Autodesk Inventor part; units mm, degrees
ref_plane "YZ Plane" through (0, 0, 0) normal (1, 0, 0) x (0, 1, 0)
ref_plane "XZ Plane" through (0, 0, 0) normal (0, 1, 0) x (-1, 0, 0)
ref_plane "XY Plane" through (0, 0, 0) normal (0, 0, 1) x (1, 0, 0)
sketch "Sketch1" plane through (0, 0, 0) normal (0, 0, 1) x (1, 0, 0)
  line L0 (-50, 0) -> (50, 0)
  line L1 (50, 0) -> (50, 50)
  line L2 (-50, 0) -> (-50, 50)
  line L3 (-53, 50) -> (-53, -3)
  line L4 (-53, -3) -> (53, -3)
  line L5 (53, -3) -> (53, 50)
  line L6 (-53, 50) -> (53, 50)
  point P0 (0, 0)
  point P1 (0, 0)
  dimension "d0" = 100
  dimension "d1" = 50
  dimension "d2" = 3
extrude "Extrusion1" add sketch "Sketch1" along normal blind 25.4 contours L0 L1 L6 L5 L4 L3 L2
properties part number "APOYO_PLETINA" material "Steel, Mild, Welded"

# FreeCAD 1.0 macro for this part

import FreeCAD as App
import Part
import Sketcher

V = App.Vector


def add_polygon(sketch, points):
    """Adds a closed chain of lines whose ends are joined by coincident constraints."""
    first, n = sketch.GeometryCount, len(points)
    for a, b in zip(points, points[1:] + points[:1]):
        sketch.addGeometry(Part.LineSegment(App.Vector(*a, 0), App.Vector(*b, 0)), False)
    for i in range(n):
        sketch.addConstraint(Sketcher.Constraint("Coincident", first + i, 2, first + (i + 1) % n, 1))

doc = App.newDocument("Part")
body = doc.addObject("PartDesign::Body", "Body")

# Sketch on XY plane
sketch1 = body.newObject("Sketcher::SketchObject", "Sketch")
sketch1.AttachmentSupport = (doc.getObject("XY_Plane"), [""])
sketch1.MapMode = "FlatFace"
add_polygon(sketch1, [(50, 0), (-50, 0), (-50, 50), (-53, 50), (-53, -3), (53, -3), (53, 50), (50, 50)])  # lines 0-7
sketch1.addConstraint([
    Sketcher.Constraint("Horizontal", 0),
    Sketcher.Constraint("Vertical", 1),
    Sketcher.Constraint("Horizontal", 2),
    Sketcher.Constraint("Vertical", 3),
    Sketcher.Constraint("Horizontal", 4),
    Sketcher.Constraint("Vertical", 5),
    Sketcher.Constraint("Horizontal", 6),
    Sketcher.Constraint("Vertical", 7),
    Sketcher.Constraint("Symmetric", 0, 2, 7, 2, -1, 1),
    Sketcher.Constraint("Symmetric", 2, 2, 5, 2, -2),
    Sketcher.Constraint("DistanceX", 0, 2, 0, 1, 100.0),
    Sketcher.Constraint("DistanceX", 2, 2, 2, 1, 3.0),
    Sketcher.Constraint("DistanceY", 1, 1, 1, 2, 50.0),
    Sketcher.Constraint("DistanceY", 3, 2, -1, 1, 3.0),
])
pad1 = body.newObject("PartDesign::Pad", "Pad")
pad1.Profile = sketch1
pad1.Length = 25.4

doc.recompute()
